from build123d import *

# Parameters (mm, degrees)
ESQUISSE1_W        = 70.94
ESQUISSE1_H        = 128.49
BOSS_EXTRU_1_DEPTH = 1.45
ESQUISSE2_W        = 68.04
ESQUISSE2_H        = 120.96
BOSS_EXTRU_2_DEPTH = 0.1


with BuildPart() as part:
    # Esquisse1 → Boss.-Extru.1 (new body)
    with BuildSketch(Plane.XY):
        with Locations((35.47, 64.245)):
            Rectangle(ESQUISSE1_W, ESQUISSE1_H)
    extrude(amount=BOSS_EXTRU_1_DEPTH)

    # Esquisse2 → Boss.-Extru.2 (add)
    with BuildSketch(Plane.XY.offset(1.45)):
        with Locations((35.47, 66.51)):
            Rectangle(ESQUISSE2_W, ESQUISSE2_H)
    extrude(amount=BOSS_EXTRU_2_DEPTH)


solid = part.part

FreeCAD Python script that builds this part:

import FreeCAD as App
import Part
import Sketcher
from FreeCAD import Vector
Q = App.Units.Quantity


def add_polygon(sketch, points):
    """Adds a closed chain of lines whose ends are joined by coincident constraints."""
    first, n = sketch.GeometryCount, len(points)
    for a, b in zip(points, points[1:] + points[:1]):
        sketch.addGeometry(Part.LineSegment(App.Vector(*a, 0), App.Vector(*b, 0)), False)
    for i in range(n):
        sketch.addConstraint(Sketcher.Constraint("Coincident", first + i, 2, first + (i + 1) % n, 1))

doc = App.newDocument("Part")
body = doc.addObject("PartDesign::Body", "Body")

# Sketch on XY plane
sketch1 = body.newObject("Sketcher::SketchObject", "Sketch")
sketch1.AttachmentSupport = (doc.getObject("XY_Plane"), [""])
sketch1.MapMode = "FlatFace"
add_polygon(sketch1, [(0, 128), (0, 0), (71, 0), (71, 128)])  # lines 0-3
sketch1.addConstraint([
    Sketcher.Constraint("Vertical", 0),
    Sketcher.Constraint("Horizontal", 1),
    Sketcher.Constraint("Vertical", 2),
    Sketcher.Constraint("Horizontal", 3),
    Sketcher.Constraint("Coincident", 0, 2, -1, 1),
    Sketcher.Constraint("DistanceX", 1, 1, 1, 2, Q("70.94 mm")),
    Sketcher.Constraint("DistanceY", 0, 2, 0, 1, Q("128.49 mm")),
])
pad1 = body.newObject("PartDesign::Pad", "Pad")
pad1.Profile = sketch1
pad1.Length = 1.45

# Sketch on XY plane
sketch2 = body.newObject("Sketcher::SketchObject", "Sketch001")
sketch2.AttachmentSupport = (doc.getObject("XY_Plane"), [""])
sketch2.MapMode = "FlatFace"
sketch2.AttachmentOffset = App.Placement(Vector(0, 0, 1.45), App.Rotation())
add_polygon(sketch2, [(1, 127), (1, 6), (69, 6), (69, 127)])  # lines 0-3
sketch2.addConstraint([
    Sketcher.Constraint("Vertical", 0),
    Sketcher.Constraint("Horizontal", 1),
    Sketcher.Constraint("Vertical", 2),
    Sketcher.Constraint("Horizontal", 3),
    Sketcher.Constraint("DistanceX", 1, 1, 1, 2, Q("68.04 mm")),
    Sketcher.Constraint("DistanceY", 0, 2, 0, 1, Q("120.96 mm")),
    Sketcher.Constraint("DistanceX", -1, 1, 0, 2, Q("1.45 mm")),
    Sketcher.Constraint("DistanceY", -1, 1, 0, 2, Q("6.03 mm")),
])
pad2 = body.newObject("PartDesign::Pad", "Pad001")
pad2.Profile = sketch2
pad2.Length = 0.1

doc.recompute()
